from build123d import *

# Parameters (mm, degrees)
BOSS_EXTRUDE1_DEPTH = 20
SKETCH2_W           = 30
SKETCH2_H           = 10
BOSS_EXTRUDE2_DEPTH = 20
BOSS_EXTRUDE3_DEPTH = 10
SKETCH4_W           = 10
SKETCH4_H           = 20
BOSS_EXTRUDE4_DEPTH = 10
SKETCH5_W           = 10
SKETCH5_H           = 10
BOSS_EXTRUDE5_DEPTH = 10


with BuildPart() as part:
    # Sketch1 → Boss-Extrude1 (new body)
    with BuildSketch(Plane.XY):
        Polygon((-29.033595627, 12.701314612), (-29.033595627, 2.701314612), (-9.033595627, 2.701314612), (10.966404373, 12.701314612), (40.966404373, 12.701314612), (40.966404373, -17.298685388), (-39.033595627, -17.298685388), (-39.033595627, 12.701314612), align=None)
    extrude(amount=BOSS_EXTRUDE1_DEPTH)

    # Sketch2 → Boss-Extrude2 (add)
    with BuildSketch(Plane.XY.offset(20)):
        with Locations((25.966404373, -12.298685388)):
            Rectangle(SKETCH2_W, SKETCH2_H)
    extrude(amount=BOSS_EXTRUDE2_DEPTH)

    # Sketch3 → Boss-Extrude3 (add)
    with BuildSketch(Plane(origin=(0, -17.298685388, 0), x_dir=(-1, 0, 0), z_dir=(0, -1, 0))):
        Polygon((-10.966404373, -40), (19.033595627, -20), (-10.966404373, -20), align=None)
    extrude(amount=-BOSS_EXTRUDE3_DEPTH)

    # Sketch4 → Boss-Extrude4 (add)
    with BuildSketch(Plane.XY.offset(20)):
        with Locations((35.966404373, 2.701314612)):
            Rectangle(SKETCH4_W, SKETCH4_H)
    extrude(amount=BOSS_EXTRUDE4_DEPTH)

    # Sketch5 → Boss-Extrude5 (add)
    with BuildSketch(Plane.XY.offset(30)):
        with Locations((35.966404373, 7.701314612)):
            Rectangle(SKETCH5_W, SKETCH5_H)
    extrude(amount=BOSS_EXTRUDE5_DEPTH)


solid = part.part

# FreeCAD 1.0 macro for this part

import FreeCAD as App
import Part
import Sketcher

V = App.Vector
Q = App.Units.Quantity


def add_polygon(sketch, points):
    """Adds a closed chain of lines whose ends are joined by coincident constraints."""
    first, n = sketch.GeometryCount, len(points)
    for a, b in zip(points, points[1:] + points[:1]):
        sketch.addGeometry(Part.LineSegment(App.Vector(*a, 0), App.Vector(*b, 0)), False)
    for i in range(n):
        sketch.addConstraint(Sketcher.Constraint("Coincident", first + i, 2, first + (i + 1) % n, 1))

doc = App.newDocument("Part")
body = doc.addObject("PartDesign::Body", "Body")

sketch1 = body.newObject("Sketcher::SketchObject", "Sketch")
sketch1.AttachmentSupport = (doc.getObject("XY_Plane"), [""])
sketch1.MapMode = "FlatFace"
add_polygon(sketch1, [(-29.033596, 2.701315), (-29.033596, 12.701315), (-39.033596, 12.701315), (-39.033596, -17.298685), (40.966404, -17.298685), (40.966404, 12.701315), (10.966404, 12.701315), (-9.033596, 2.701315)])
sketch1.addConstraint(Sketcher.Constraint("Vertical", 0))
sketch1.addConstraint(Sketcher.Constraint("Horizontal", 1))
sketch1.addConstraint(Sketcher.Constraint("Vertical", 2))
sketch1.addConstraint(Sketcher.Constraint("Horizontal", 3))
sketch1.addConstraint(Sketcher.Constraint("Vertical", 4))
sketch1.addConstraint(Sketcher.Constraint("Horizontal", 5))
sketch1.addConstraint(Sketcher.Constraint("Horizontal", 7))
sketch1.addConstraint(Sketcher.Constraint("Horizontal", 1, 2, 4, 2))
sketch1.addConstraint(Sketcher.Constraint("Equal", 1, 0))
sketch1.addConstraint(Sketcher.Constraint("Equal", 5, 2))
sketch1.addConstraint(Sketcher.Constraint("DistanceX", 1, 2, 1, 1, Q("10 mm")))
sketch1.addConstraint(Sketcher.Constraint("DistanceX", 3, 1, 3, 2, Q("80 mm")))
sketch1.addConstraint(Sketcher.Constraint("DistanceX", 5, 2, 5, 1, Q("30 mm")))
sketch1.addConstraint(Sketcher.Constraint("DistanceX", 7, 2, 7, 1, Q("20 mm")))
sketch1.addConstraint(Sketcher.Constraint("DistanceX", 0, 2, -1, 1, Q("29.033596 mm")))
sketch1.addConstraint(Sketcher.Constraint("DistanceY", -1, 1, 0, 2, Q("12.701315 mm")))
pad1 = body.newObject("PartDesign::Pad", "Pad")
pad1.Profile = sketch1
pad1.Length = 20

sketch2 = body.newObject("Sketcher::SketchObject", "Sketch001")
sketch2.AttachmentSupport = (doc.getObject("XY_Plane"), [""])
sketch2.MapMode = "FlatFace"
sketch2.AttachmentOffset = App.Placement(V(0, 0, 20), App.Rotation())
add_polygon(sketch2, [(10.966404, -7.298685), (10.966404, -17.298685), (40.966404, -17.298685), (40.966404, -7.298685)])
sketch2.addConstraint(Sketcher.Constraint("Vertical", 0))
sketch2.addConstraint(Sketcher.Constraint("Horizontal", 1))
sketch2.addConstraint(Sketcher.Constraint("Vertical", 2))
sketch2.addConstraint(Sketcher.Constraint("Horizontal", 3))
sketch2.addConstraint(Sketcher.Constraint("DistanceX", 1, 1, 1, 2, Q("30 mm")))
sketch2.addConstraint(Sketcher.Constraint("DistanceY", 0, 2, 0, 1, Q("10 mm")))
sketch2.addConstraint(Sketcher.Constraint("DistanceX", -1, 1, 0, 2, Q("10.966404 mm")))
sketch2.addConstraint(Sketcher.Constraint("DistanceY", 0, 2, -1, 1, Q("17.298685 mm")))
pad2 = body.newObject("PartDesign::Pad", "Pad001")
pad2.Profile = sketch2
pad2.Length = 20

sketch3 = body.newObject("Sketcher::SketchObject", "Sketch002")
sketch3.AttachmentSupport = (doc.getObject("XZ_Plane"), [""])
sketch3.MapMode = "FlatFace"
sketch3.AttachmentOffset = App.Placement(V(0, 0, 17.298685), App.Rotation())
add_polygon(sketch3, [(10.966404, 40), (-19.033596, 20), (10.966404, 20)])
sketch3.addConstraint(Sketcher.Constraint("Horizontal", 1))
sketch3.addConstraint(Sketcher.Constraint("Vertical", 2))
sketch3.addConstraint(Sketcher.Constraint("DistanceX", 1, 1, 1, 2, Q("30 mm")))
sketch3.addConstraint(Sketcher.Constraint("DistanceY", 2, 1, 2, 2, Q("20 mm")))
sketch3.addConstraint(Sketcher.Constraint("DistanceY", -1, 1, 0, 2, Q("20 mm")))
sketch3.addConstraint(Sketcher.Constraint("DistanceX", 0, 2, -1, 1, Q("19.033596 mm")))
pad3 = body.newObject("PartDesign::Pad", "Pad002")
pad3.Profile = sketch3
pad3.Length = 10
pad3.Reversed = True

sketch4 = body.newObject("Sketcher::SketchObject", "Sketch003")
sketch4.AttachmentSupport = (doc.getObject("XY_Plane"), [""])
sketch4.MapMode = "FlatFace"
sketch4.AttachmentOffset = App.Placement(V(0, 0, 20), App.Rotation())
add_polygon(sketch4, [(30.966404, 12.701315), (30.966404, -7.298685), (40.966404, -7.298685), (40.966404, 12.701315)])
sketch4.addConstraint(Sketcher.Constraint("Vertical", 0))
sketch4.addConstraint(Sketcher.Constraint("Horizontal", 1))
sketch4.addConstraint(Sketcher.Constraint("Vertical", 2))
sketch4.addConstraint(Sketcher.Constraint("Horizontal", 3))
sketch4.addConstraint(Sketcher.Constraint("DistanceX", 1, 1, 1, 2, Q("10 mm")))
sketch4.addConstraint(Sketcher.Constraint("DistanceY", 0, 2, 0, 1, Q("20 mm")))
sketch4.addConstraint(Sketcher.Constraint("DistanceX", -1, 1, 0, 2, Q("30.966404 mm")))
sketch4.addConstraint(Sketcher.Constraint("DistanceY", 0, 2, -1, 1, Q("7.298685 mm")))
pad4 = body.newObject("PartDesign::Pad", "Pad003")
pad4.Profile = sketch4
pad4.Length = 10

sketch5 = body.newObject("Sketcher::SketchObject", "Sketch004")
sketch5.AttachmentSupport = (doc.getObject("XY_Plane"), [""])
sketch5.MapMode = "FlatFace"
sketch5.AttachmentOffset = App.Placement(V(0, 0, 30), App.Rotation())
add_polygon(sketch5, [(30.966404, 12.701315), (30.966404, 2.701315), (40.966404, 2.701315), (40.966404, 12.701315)])
sketch5.addConstraint(Sketcher.Constraint("Vertical", 0))
sketch5.addConstraint(Sketcher.Constraint("Horizontal", 1))
sketch5.addConstraint(Sketcher.Constraint("Vertical", 2))
sketch5.addConstraint(Sketcher.Constraint("Horizontal", 3))
sketch5.addConstraint(Sketcher.Constraint("Equal", 3, 0))
sketch5.addConstraint(Sketcher.Constraint("DistanceX", 1, 1, 1, 2, Q("10 mm")))
sketch5.addConstraint(Sketcher.Constraint("DistanceX", -1, 1, 0, 2, Q("30.966404 mm")))
sketch5.addConstraint(Sketcher.Constraint("DistanceY", -1, 1, 0, 2, Q("2.701315 mm")))
pad5 = body.newObject("PartDesign::Pad", "Pad004")
pad5.Profile = sketch5
pad5.Length = 10

doc.recompute()
